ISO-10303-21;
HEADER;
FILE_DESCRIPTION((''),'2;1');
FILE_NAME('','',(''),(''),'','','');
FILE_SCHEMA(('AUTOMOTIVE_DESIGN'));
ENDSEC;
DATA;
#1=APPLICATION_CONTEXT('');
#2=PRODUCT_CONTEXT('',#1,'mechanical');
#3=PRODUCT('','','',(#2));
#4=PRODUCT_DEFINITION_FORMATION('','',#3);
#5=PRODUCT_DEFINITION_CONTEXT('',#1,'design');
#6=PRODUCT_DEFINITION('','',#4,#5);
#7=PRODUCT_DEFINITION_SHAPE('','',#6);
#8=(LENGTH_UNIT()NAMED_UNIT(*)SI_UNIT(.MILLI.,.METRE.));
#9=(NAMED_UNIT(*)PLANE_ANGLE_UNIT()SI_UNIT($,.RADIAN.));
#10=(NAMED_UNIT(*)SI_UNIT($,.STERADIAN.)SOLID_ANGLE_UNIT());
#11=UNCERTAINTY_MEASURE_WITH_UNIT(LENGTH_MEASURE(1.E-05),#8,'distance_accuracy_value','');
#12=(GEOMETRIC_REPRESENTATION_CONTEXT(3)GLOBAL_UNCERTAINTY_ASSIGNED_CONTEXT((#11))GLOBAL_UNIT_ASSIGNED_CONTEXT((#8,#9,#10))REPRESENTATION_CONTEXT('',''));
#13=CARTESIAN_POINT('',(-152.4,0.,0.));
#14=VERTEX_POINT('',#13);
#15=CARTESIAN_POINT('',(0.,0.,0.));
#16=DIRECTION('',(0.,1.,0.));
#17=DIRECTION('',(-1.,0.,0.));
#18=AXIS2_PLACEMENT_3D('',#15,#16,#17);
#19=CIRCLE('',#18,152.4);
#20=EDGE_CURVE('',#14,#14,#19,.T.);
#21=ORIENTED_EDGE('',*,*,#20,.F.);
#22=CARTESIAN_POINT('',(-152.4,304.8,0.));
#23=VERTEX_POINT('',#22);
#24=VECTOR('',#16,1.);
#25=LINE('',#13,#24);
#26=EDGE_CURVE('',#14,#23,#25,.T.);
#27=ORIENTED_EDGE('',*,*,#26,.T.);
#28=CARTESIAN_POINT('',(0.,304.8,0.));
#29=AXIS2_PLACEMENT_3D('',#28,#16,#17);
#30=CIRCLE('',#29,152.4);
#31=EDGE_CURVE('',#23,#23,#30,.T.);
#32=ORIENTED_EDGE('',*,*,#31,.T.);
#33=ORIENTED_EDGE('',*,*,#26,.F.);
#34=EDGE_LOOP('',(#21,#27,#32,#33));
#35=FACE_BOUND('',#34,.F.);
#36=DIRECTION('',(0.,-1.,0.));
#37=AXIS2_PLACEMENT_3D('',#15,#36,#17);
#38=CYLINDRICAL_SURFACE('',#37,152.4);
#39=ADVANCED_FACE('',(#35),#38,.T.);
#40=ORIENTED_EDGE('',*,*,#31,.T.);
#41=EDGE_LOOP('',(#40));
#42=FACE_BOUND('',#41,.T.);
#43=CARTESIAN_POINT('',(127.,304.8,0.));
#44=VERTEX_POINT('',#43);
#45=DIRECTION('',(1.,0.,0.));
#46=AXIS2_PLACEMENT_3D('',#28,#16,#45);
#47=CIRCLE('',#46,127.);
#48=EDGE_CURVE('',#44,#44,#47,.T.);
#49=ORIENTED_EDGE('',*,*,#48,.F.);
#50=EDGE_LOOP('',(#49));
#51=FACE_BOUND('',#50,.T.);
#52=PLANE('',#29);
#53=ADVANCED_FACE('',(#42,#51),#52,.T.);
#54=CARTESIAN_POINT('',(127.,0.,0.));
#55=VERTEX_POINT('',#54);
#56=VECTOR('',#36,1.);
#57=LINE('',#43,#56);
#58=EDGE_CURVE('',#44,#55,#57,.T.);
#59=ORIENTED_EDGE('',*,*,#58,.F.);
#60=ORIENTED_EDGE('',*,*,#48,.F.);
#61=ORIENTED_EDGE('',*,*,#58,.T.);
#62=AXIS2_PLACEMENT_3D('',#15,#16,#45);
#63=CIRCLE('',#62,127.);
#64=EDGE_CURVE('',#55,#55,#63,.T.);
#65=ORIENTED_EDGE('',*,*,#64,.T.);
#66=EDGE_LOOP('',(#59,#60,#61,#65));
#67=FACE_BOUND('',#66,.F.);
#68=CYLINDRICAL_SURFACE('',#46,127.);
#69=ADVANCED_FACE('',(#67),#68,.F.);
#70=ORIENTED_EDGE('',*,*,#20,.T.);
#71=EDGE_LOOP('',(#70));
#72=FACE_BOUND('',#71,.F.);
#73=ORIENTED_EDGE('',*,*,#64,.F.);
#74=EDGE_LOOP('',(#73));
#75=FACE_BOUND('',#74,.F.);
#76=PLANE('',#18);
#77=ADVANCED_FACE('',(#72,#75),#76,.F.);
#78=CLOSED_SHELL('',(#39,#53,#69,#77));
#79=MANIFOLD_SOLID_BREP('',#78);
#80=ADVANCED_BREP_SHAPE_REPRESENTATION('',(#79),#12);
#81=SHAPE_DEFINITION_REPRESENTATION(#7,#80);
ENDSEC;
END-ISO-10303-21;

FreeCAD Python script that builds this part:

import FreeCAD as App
import Part
import Sketcher
from FreeCAD import Vector
Q = App.Units.Quantity

doc = App.newDocument("Part")
body = doc.addObject("PartDesign::Body", "Body")

# Sketch on XZ plane
sketch1 = body.newObject("Sketcher::SketchObject", "Sketch")
sketch1.AttachmentSupport = (doc.getObject("XZ_Plane"), [""])
sketch1.MapMode = "FlatFace"
sketch1.addGeometry(Part.Circle(Vector(0, 0, 0), Vector(0, 0, 1), 152), False)
sketch1.addConstraint(Sketcher.Constraint("Coincident", 0, 3, -1, 1))
sketch1.addConstraint(Sketcher.Constraint("Diameter", 0, Q("12 in")))
pad1 = body.newObject("PartDesign::Pad", "Pad")
pad1.Profile = sketch1
pad1.Length = Q("12 in")
pad1.Reversed = True

# Sketch on XZ plane
sketch2 = body.newObject("Sketcher::SketchObject", "Sketch001")
sketch2.AttachmentSupport = (doc.getObject("XZ_Plane"), [""])
sketch2.MapMode = "FlatFace"
sketch2.AttachmentOffset = App.Placement(Vector(0, 0, -12 * 25.4), App.Rotation())
sketch2.addGeometry(Part.Circle(Vector(0, 0, 0), Vector(0, 0, 1), 127), False)
sketch2.addConstraint(Sketcher.Constraint("Coincident", 0, 3, -1, 1))
sketch2.addConstraint(Sketcher.Constraint("Diameter", 0, Q("10 in")))
pocket1 = body.newObject("PartDesign::Pocket", "Pocket")
pocket1.Profile = sketch2
pocket1.Type = "ThroughAll"
pocket1.Reversed = True

doc.recompute()
